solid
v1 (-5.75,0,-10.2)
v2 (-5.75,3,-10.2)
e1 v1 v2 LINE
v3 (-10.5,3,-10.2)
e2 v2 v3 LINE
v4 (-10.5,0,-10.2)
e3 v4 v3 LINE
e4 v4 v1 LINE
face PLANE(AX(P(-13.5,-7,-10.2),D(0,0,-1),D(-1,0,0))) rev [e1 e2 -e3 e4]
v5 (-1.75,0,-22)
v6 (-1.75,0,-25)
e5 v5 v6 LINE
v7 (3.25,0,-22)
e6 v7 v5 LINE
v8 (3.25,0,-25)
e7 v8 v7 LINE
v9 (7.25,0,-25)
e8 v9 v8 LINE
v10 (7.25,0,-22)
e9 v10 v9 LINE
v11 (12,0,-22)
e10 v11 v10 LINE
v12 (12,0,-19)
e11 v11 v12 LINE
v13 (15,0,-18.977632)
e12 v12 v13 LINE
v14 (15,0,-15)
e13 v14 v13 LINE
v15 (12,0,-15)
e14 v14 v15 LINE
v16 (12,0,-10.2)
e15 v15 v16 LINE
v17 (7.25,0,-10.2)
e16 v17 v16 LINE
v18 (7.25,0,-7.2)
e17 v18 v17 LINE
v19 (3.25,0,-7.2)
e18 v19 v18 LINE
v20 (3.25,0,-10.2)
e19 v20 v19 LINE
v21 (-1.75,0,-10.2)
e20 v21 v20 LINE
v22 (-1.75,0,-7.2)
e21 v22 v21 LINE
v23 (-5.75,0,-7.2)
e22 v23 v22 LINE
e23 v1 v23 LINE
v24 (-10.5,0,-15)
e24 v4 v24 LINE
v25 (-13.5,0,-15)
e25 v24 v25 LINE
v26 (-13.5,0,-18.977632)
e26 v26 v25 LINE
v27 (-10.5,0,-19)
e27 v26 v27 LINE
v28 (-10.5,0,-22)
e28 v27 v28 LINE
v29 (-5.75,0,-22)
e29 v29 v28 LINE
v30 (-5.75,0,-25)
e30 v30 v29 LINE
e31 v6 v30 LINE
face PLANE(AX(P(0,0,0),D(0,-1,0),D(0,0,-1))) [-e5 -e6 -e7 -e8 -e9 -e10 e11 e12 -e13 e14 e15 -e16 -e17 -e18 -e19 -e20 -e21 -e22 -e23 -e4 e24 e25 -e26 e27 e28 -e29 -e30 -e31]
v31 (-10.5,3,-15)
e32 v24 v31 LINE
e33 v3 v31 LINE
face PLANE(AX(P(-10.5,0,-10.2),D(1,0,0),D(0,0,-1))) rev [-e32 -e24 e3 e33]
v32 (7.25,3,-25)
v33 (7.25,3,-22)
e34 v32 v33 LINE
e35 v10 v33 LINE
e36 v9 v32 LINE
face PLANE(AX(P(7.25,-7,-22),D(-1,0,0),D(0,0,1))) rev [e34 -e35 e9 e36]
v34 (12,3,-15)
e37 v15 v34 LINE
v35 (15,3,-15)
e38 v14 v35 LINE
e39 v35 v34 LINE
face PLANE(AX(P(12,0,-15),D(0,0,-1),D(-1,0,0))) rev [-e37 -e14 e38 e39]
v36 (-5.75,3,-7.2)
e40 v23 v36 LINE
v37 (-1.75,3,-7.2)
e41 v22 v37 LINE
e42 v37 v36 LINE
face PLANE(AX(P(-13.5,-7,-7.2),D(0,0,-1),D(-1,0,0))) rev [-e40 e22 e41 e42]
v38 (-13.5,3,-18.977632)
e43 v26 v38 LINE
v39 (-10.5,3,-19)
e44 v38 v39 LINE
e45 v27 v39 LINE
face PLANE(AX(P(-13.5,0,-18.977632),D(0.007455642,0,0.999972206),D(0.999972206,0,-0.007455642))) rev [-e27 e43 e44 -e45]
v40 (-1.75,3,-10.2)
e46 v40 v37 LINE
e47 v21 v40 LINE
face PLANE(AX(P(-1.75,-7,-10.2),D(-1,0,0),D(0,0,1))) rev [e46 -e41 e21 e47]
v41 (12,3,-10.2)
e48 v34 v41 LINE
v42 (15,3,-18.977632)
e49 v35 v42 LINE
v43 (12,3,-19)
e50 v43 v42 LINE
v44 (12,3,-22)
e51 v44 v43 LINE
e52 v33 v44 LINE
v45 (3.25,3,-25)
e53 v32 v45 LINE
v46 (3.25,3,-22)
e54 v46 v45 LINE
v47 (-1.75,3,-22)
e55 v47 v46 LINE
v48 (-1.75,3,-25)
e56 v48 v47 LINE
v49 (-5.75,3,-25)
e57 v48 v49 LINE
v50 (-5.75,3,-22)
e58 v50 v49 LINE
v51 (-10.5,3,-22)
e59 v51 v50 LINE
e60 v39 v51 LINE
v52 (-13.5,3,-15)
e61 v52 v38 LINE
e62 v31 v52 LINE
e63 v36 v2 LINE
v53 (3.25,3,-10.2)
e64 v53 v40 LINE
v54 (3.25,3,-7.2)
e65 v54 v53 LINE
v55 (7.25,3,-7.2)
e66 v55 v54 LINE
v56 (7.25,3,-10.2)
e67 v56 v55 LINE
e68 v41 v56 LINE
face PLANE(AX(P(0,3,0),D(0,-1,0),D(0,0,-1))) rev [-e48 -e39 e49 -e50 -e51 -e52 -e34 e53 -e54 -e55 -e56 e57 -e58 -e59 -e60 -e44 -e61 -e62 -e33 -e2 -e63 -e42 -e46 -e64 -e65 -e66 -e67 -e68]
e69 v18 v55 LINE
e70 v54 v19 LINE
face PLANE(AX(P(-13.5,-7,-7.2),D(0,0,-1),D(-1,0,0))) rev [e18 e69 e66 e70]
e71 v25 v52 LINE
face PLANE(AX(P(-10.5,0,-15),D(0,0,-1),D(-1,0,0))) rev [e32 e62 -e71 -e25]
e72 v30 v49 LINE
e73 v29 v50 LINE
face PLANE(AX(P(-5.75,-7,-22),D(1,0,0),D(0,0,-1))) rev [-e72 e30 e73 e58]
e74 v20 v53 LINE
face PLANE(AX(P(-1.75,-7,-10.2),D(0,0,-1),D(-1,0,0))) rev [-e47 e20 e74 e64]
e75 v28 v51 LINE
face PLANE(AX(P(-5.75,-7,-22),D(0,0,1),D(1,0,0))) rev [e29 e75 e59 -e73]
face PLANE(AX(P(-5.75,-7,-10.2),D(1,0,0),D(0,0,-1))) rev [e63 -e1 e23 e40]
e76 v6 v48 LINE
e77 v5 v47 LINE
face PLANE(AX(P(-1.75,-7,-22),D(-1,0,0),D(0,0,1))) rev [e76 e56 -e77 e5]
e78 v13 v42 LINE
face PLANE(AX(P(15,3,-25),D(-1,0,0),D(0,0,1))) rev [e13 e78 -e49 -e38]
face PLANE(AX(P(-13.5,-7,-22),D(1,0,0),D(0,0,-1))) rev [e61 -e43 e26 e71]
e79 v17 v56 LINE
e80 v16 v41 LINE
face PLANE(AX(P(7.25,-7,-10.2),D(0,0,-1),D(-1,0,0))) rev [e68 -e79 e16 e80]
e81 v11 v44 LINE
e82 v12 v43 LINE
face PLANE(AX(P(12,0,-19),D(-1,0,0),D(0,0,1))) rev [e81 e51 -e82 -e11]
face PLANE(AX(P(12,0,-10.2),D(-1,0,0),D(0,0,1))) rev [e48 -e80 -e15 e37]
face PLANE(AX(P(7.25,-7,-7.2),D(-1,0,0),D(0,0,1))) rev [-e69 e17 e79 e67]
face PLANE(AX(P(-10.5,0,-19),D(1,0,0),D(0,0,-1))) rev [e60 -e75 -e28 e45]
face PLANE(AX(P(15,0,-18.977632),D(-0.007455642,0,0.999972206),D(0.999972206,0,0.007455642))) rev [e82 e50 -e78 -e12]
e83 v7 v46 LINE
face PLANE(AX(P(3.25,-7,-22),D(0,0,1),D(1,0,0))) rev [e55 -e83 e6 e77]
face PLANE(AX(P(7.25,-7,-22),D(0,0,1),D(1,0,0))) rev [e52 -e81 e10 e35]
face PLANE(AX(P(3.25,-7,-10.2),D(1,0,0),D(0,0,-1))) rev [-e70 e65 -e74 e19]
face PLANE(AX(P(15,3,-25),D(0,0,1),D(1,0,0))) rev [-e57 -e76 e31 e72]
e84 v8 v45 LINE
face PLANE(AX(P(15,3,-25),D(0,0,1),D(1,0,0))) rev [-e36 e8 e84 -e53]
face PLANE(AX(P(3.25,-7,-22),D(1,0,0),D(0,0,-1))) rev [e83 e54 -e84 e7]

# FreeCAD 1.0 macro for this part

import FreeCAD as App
import Part
import Sketcher

V = App.Vector

doc = App.newDocument("Part")
params = doc.addObject("Spreadsheet::Sheet", "Params")
for row, (alias, value) in enumerate([
    ("sketch1_width", "30 mm"),
    ("sketch1_height", "50 mm"),
    ("pad1_length", "3 mm"),
    ("sketch2_width", "5 mm"),
    ("sketch2_height", "3 mm"),
    ("sketch2_width2", "7.75 mm"),
    ("pocket1_length", "10 mm"),
    ("sketch3_height", "14.8 mm"),
    ("pocket2_length", "10 mm"),
    ("sketch4_width", "5 mm"),
    ("sketch4_height", "3 mm"),
    ("sketch4_width2", "7.75 mm"),
    ("pocket3_length", "10 mm"),
    ("sketch5_width", "3 mm"),
    ("sketch5_height", "4.8 mm"),
    ("sketch5_height2", "11.8 mm"),
    ("pocket4_length", "3 mm"),
], start=1):
    params.set(f"A{row}", alias)
    params.set(f"B{row}", "=" + value)
    params.setAlias(f"B{row}", alias)

body = doc.addObject("PartDesign::Body", "Body")

# Sketch on XZ plane
sketch1 = body.newObject("Sketcher::SketchObject", "Sketch")
sketch1.AttachmentSupport = (doc.getObject("XZ_Plane"), [""])
sketch1.MapMode = "FlatFace"
sketch1.addGeometry(Part.LineSegment(V(-15, -25, 0), V(-15, 25, 0)), False)
sketch1.addGeometry(Part.LineSegment(V(-15, 25, 0), V(15, 25, 0)), False)
sketch1.addGeometry(Part.LineSegment(V(15, 25, 0), V(15, -25, 0)), False)
sketch1.addGeometry(Part.LineSegment(V(15, -25, 0), V(-15, -25, 0)), False)
sketch1.addConstraint(Sketcher.Constraint("Coincident", 0, 2, 1, 1))
sketch1.addConstraint(Sketcher.Constraint("Coincident", 1, 2, 2, 1))
sketch1.addConstraint(Sketcher.Constraint("Coincident", 2, 2, 3, 1))
sketch1.addConstraint(Sketcher.Constraint("Coincident", 3, 2, 0, 1))
sketch1.addConstraint(Sketcher.Constraint("Vertical", 0))
sketch1.addConstraint(Sketcher.Constraint("Horizontal", 1))
sketch1.addConstraint(Sketcher.Constraint("Vertical", 2))
sketch1.addConstraint(Sketcher.Constraint("Horizontal", 3))
sketch1.addConstraint(Sketcher.Constraint("Symmetric", 0, 2, 2, 2, -1, 1))
sketch1.addConstraint(Sketcher.Constraint("DistanceX", 1, 1, 1, 2, 30.0))
sketch1.addConstraint(Sketcher.Constraint("DistanceY", 0, 1, 0, 2, 50.0))
sketch1.setExpression("Constraints[9]", "Params.sketch1_width")
sketch1.setExpression("Constraints[10]", "Params.sketch1_height")
pad1 = body.newObject("PartDesign::Pad", "Pad")
pad1.Profile = sketch1
pad1.setExpression("Length", "Params.pad1_length")
pad1.Reversed = True

# Sketch on XZ plane
sketch2 = body.newObject("Sketcher::SketchObject", "Sketch001")
sketch2.AttachmentSupport = (doc.getObject("XZ_Plane"), [""])
sketch2.MapMode = "FlatFace"
sketch2.AttachmentOffset = App.Placement(V(0, 0, -3), App.Rotation())
sketch2.addGeometry(Part.LineSegment(V(7.25, -25, 0), V(7.25, -22, 0)), False)
sketch2.addGeometry(Part.LineSegment(V(7.25, -22, 0), V(15, -22, 0)), False)
sketch2.addGeometry(Part.LineSegment(V(15, -22, 0), V(15, -25, 0)), False)
sketch2.addGeometry(Part.LineSegment(V(15, -25, 0), V(7.25, -25, 0)), False)
sketch2.addGeometry(Part.LineSegment(V(-1.75, -25, 0), V(-1.75, -22, 0)), False)
sketch2.addGeometry(Part.LineSegment(V(-1.75, -22, 0), V(3.25, -22, 0)), False)
sketch2.addGeometry(Part.LineSegment(V(3.25, -22, 0), V(3.25, -25, 0)), False)
sketch2.addGeometry(Part.LineSegment(V(3.25, -25, 0), V(-1.75, -25, 0)), False)
sketch2.addGeometry(Part.LineSegment(V(-13.5, -25, 0), V(-13.5, -22, 0)), False)
sketch2.addGeometry(Part.LineSegment(V(-13.5, -22, 0), V(-5.75, -22, 0)), False)
sketch2.addGeometry(Part.LineSegment(V(-5.75, -22, 0), V(-5.75, -25, 0)), False)
sketch2.addGeometry(Part.LineSegment(V(-5.75, -25, 0), V(-13.5, -25, 0)), False)
sketch2.addConstraint(Sketcher.Constraint("Coincident", 0, 2, 1, 1))
sketch2.addConstraint(Sketcher.Constraint("Coincident", 1, 2, 2, 1))
sketch2.addConstraint(Sketcher.Constraint("Coincident", 2, 2, 3, 1))
sketch2.addConstraint(Sketcher.Constraint("Coincident", 3, 2, 0, 1))
sketch2.addConstraint(Sketcher.Constraint("Coincident", 4, 2, 5, 1))
sketch2.addConstraint(Sketcher.Constraint("Coincident", 5, 2, 6, 1))
sketch2.addConstraint(Sketcher.Constraint("Coincident", 6, 2, 7, 1))
sketch2.addConstraint(Sketcher.Constraint("Coincident", 7, 2, 4, 1))
sketch2.addConstraint(Sketcher.Constraint("Coincident", 8, 2, 9, 1))
sketch2.addConstraint(Sketcher.Constraint("Coincident", 9, 2, 10, 1))
sketch2.addConstraint(Sketcher.Constraint("Coincident", 10, 2, 11, 1))
sketch2.addConstraint(Sketcher.Constraint("Coincident", 11, 2, 8, 1))
sketch2.addConstraint(Sketcher.Constraint("Vertical", 0))
sketch2.addConstraint(Sketcher.Constraint("Horizontal", 1))
sketch2.addConstraint(Sketcher.Constraint("Vertical", 2))
sketch2.addConstraint(Sketcher.Constraint("Horizontal", 3))
sketch2.addConstraint(Sketcher.Constraint("Vertical", 4))
sketch2.addConstraint(Sketcher.Constraint("Horizontal", 5))
sketch2.addConstraint(Sketcher.Constraint("Vertical", 6))
sketch2.addConstraint(Sketcher.Constraint("Horizontal", 7))
sketch2.addConstraint(Sketcher.Constraint("Vertical", 8))
sketch2.addConstraint(Sketcher.Constraint("Horizontal", 9))
sketch2.addConstraint(Sketcher.Constraint("Vertical", 10))
sketch2.addConstraint(Sketcher.Constraint("Horizontal", 11))
sketch2.addConstraint(Sketcher.Constraint("Horizontal", 1, 2, 4, 2))
sketch2.addConstraint(Sketcher.Constraint("Horizontal", 3, 2, 6, 2))
sketch2.addConstraint(Sketcher.Constraint("Horizontal", 5, 2, 8, 2))
sketch2.addConstraint(Sketcher.Constraint("Horizontal", 7, 2, 10, 2))
sketch2.addConstraint(Sketcher.Constraint("Equal", 3, 9))
sketch2.addConstraint(Sketcher.Constraint("DistanceX", 5, 1, 5, 2, 5.0))
sketch2.addConstraint(Sketcher.Constraint("DistanceY", 0, 1, 0, 2, 3.0))
sketch2.addConstraint(Sketcher.Constraint("DistanceY", 0, 2, -1, 1, 22.0))
sketch2.addConstraint(Sketcher.Constraint("DistanceX", -1, 1, 1, 2, 15.0))
sketch2.addConstraint(Sketcher.Constraint("DistanceX", 4, 2, 0, 2, 9.0))
sketch2.addConstraint(Sketcher.Constraint("DistanceX", 9, 2, 4, 2, 4.0))
sketch2.addConstraint(Sketcher.Constraint("DistanceX", 1, 1, 1, 2, 7.75))
sketch2.setExpression("Constraints[29]", "Params.sketch2_width")
sketch2.setExpression("Constraints[30]", "Params.sketch2_height")
sketch2.setExpression("Constraints[35]", "Params.sketch2_width2")
pocket1 = body.newObject("PartDesign::Pocket", "Pocket")
pocket1.Profile = sketch2
pocket1.setExpression("Length", "Params.pocket1_length")
pocket1.Reversed = True

# Sketch on XZ plane
sketch3 = body.newObject("Sketcher::SketchObject", "Sketch002")
sketch3.AttachmentSupport = (doc.getObject("XZ_Plane"), [""])
sketch3.MapMode = "FlatFace"
sketch3.AttachmentOffset = App.Placement(V(0, 0, -3), App.Rotation())
sketch3.addGeometry(Part.LineSegment(V(-13.5, -7.2, 0), V(-13.5, -22, 0)), False)
sketch3.addGeometry(Part.LineSegment(V(-13.5, -22, 0), V(-12.545267, -26.393201, 0)), False)
sketch3.addGeometry(Part.LineSegment(V(-12.545267, -26.393201, 0), V(-28.226415, -29.547984, 0)), False)
sketch3.addGeometry(Part.LineSegment(V(-28.226415, -29.547984, 0), V(-28.226415, 62.151394, 0)), False)
sketch3.addGeometry(Part.LineSegment(V(-28.226415, 62.151394, 0), V(23.912216, 42.141377, 0)), False)
sketch3.addGeometry(Part.LineSegment(V(23.912216, 42.141377, 0), V(33.838871, -7.2, 0)), False)
sketch3.addGeometry(Part.LineSegment(V(33.838871, -7.2, 0), V(-13.5, -7.2, 0)), False)
sketch3.addConstraint(Sketcher.Constraint("Coincident", 0, 2, 1, 1))
sketch3.addConstraint(Sketcher.Constraint("Coincident", 1, 2, 2, 1))
sketch3.addConstraint(Sketcher.Constraint("Coincident", 2, 2, 3, 1))
sketch3.addConstraint(Sketcher.Constraint("Coincident", 3, 2, 4, 1))
sketch3.addConstraint(Sketcher.Constraint("Coincident", 4, 2, 5, 1))
sketch3.addConstraint(Sketcher.Constraint("Coincident", 5, 2, 6, 1))
sketch3.addConstraint(Sketcher.Constraint("Coincident", 6, 2, 0, 1))
sketch3.addConstraint(Sketcher.Constraint("Vertical", 0))
sketch3.addConstraint(Sketcher.Constraint("Vertical", 3))
sketch3.addConstraint(Sketcher.Constraint("Horizontal", 6))
sketch3.addConstraint(Sketcher.Constraint("Perpendicular", 2, 5))
sketch3.addConstraint(Sketcher.Constraint("DistanceY", 0, 2, 0, 1, 14.8))
sketch3.addConstraint(Sketcher.Constraint("DistanceY", 0, 2, -1, 1, 22.0))
sketch3.addConstraint(Sketcher.Constraint("DistanceX", 0, 2, -1, 1, 13.5))
sketch3.addConstraint(Sketcher.Constraint("DistanceX", 6, 2, 6, 1, 47.338871))
sketch3.addConstraint(Sketcher.Constraint("DistanceY", 1, 2, -1, 1, 26.393201))
sketch3.addConstraint(Sketcher.Constraint("Distance", 5, 50.330011))
sketch3.addConstraint(Sketcher.Constraint("DistanceY", 3, 1, 3, 2, 91.699377))
sketch3.addConstraint(Sketcher.Constraint("DistanceX", 3, 2, 4, 2, 52.138631))
sketch3.addConstraint(Sketcher.Constraint("DistanceY", 1, 2, 4, 2, 68.534578))
sketch3.addConstraint(Sketcher.Constraint("DistanceY", 2, 2, 4, 2, 71.689361))
sketch3.setExpression("Constraints[11]", "Params.sketch3_height")
pocket2 = body.newObject("PartDesign::Pocket", "Pocket001")
pocket2.Profile = sketch3
pocket2.setExpression("Length", "Params.pocket2_length")
pocket2.Reversed = True

# Sketch on XZ plane
sketch4 = body.newObject("Sketcher::SketchObject", "Sketch003")
sketch4.AttachmentSupport = (doc.getObject("XZ_Plane"), [""])
sketch4.MapMode = "FlatFace"
sketch4.AttachmentOffset = App.Placement(V(0, 0, -3), App.Rotation())
sketch4.addGeometry(Part.LineSegment(V(7.25, -10.2, 0), V(7.25, -7.2, 0)), False)
sketch4.addGeometry(Part.LineSegment(V(7.25, -7.2, 0), V(15, -7.2, 0)), False)
sketch4.addGeometry(Part.LineSegment(V(15, -7.2, 0), V(15, -10.2, 0)), False)
sketch4.addGeometry(Part.LineSegment(V(15, -10.2, 0), V(7.25, -10.2, 0)), False)
sketch4.addGeometry(Part.LineSegment(V(-13.5, -10.2, 0), V(-13.5, -7.2, 0)), False)
sketch4.addGeometry(Part.LineSegment(V(-13.5, -7.2, 0), V(-5.75, -7.2, 0)), False)
sketch4.addGeometry(Part.LineSegment(V(-5.75, -7.2, 0), V(-5.75, -10.2, 0)), False)
sketch4.addGeometry(Part.LineSegment(V(-5.75, -10.2, 0), V(-13.5, -10.2, 0)), False)
sketch4.addGeometry(Part.LineSegment(V(-1.75, -10.2, 0), V(-1.75, -7.2, 0)), False)
sketch4.addGeometry(Part.LineSegment(V(-1.75, -7.2, 0), V(3.25, -7.2, 0)), False)
sketch4.addGeometry(Part.LineSegment(V(3.25, -7.2, 0), V(3.25, -10.2, 0)), False)
sketch4.addGeometry(Part.LineSegment(V(3.25, -10.2, 0), V(-1.75, -10.2, 0)), False)
sketch4.addConstraint(Sketcher.Constraint("Coincident", 0, 2, 1, 1))
sketch4.addConstraint(Sketcher.Constraint("Coincident", 1, 2, 2, 1))
sketch4.addConstraint(Sketcher.Constraint("Coincident", 2, 2, 3, 1))
sketch4.addConstraint(Sketcher.Constraint("Coincident", 3, 2, 0, 1))
sketch4.addConstraint(Sketcher.Constraint("Coincident", 4, 2, 5, 1))
sketch4.addConstraint(Sketcher.Constraint("Coincident", 5, 2, 6, 1))
sketch4.addConstraint(Sketcher.Constraint("Coincident", 6, 2, 7, 1))
sketch4.addConstraint(Sketcher.Constraint("Coincident", 7, 2, 4, 1))
sketch4.addConstraint(Sketcher.Constraint("Coincident", 8, 2, 9, 1))
sketch4.addConstraint(Sketcher.Constraint("Coincident", 9, 2, 10, 1))
sketch4.addConstraint(Sketcher.Constraint("Coincident", 10, 2, 11, 1))
sketch4.addConstraint(Sketcher.Constraint("Coincident", 11, 2, 8, 1))
sketch4.addConstraint(Sketcher.Constraint("Vertical", 0))
sketch4.addConstraint(Sketcher.Constraint("Horizontal", 1))
sketch4.addConstraint(Sketcher.Constraint("Vertical", 2))
sketch4.addConstraint(Sketcher.Constraint("Horizontal", 3))
sketch4.addConstraint(Sketcher.Constraint("Vertical", 4))
sketch4.addConstraint(Sketcher.Constraint("Horizontal", 5))
sketch4.addConstraint(Sketcher.Constraint("Vertical", 6))
sketch4.addConstraint(Sketcher.Constraint("Horizontal", 7))
sketch4.addConstraint(Sketcher.Constraint("Vertical", 8))
sketch4.addConstraint(Sketcher.Constraint("Horizontal", 9))
sketch4.addConstraint(Sketcher.Constraint("Vertical", 10))
sketch4.addConstraint(Sketcher.Constraint("Horizontal", 11))
sketch4.addConstraint(Sketcher.Constraint("Horizontal", 1, 2, 4, 2))
sketch4.addConstraint(Sketcher.Constraint("Horizontal", 3, 2, 6, 2))
sketch4.addConstraint(Sketcher.Constraint("Horizontal", 5, 2, 8, 2))
sketch4.addConstraint(Sketcher.Constraint("Horizontal", 7, 2, 10, 2))
sketch4.addConstraint(Sketcher.Constraint("Equal", 3, 5))
sketch4.addConstraint(Sketcher.Constraint("DistanceX", 9, 1, 9, 2, 5.0))
sketch4.addConstraint(Sketcher.Constraint("DistanceY", 0, 1, 0, 2, 3.0))
sketch4.addConstraint(Sketcher.Constraint("DistanceX", -1, 1, 1, 2, 15.0))
sketch4.addConstraint(Sketcher.Constraint("DistanceX", 5, 2, 0, 2, 13.0))
sketch4.addConstraint(Sketcher.Constraint("DistanceX", 5, 2, 8, 2, 4.0))
sketch4.addConstraint(Sketcher.Constraint("DistanceX", 1, 1, 1, 2, 7.75))
sketch4.addConstraint(Sketcher.Constraint("DistanceY", 0, 2, -1, 1, 7.2))
sketch4.setExpression("Constraints[29]", "Params.sketch4_width")
sketch4.setExpression("Constraints[30]", "Params.sketch4_height")
sketch4.setExpression("Constraints[34]", "Params.sketch4_width2")
pocket3 = body.newObject("PartDesign::Pocket", "Pocket002")
pocket3.Profile = sketch4
pocket3.setExpression("Length", "Params.pocket3_length")
pocket3.Reversed = True

# Sketch on XZ plane
sketch5 = body.newObject("Sketcher::SketchObject", "Sketch004")
sketch5.AttachmentSupport = (doc.getObject("XZ_Plane"), [""])
sketch5.MapMode = "FlatFace"
sketch5.AttachmentOffset = App.Placement(V(0, 0, -3), App.Rotation())
sketch5.addGeometry(Part.LineSegment(V(-10.5, -10.2, 0), V(-10.5, -15, 0)), False)
sketch5.addGeometry(Part.LineSegment(V(-10.5, -15, 0), V(-13.5, -15, 0)), False)
sketch5.addGeometry(Part.LineSegment(V(-13.5, -15, 0), V(-13.5, -18.977632, 0)), False)
sketch5.addGeometry(Part.LineSegment(V(-13.5, -18.977632, 0), V(-10.5, -19, 0)), False)
sketch5.addGeometry(Part.LineSegment(V(-10.5, -19, 0), V(-10.5, -22, 0)), False)
sketch5.addGeometry(Part.LineSegment(V(-10.5, -22, 0), V(-14.441736, -22, 0)), False)
sketch5.addGeometry(Part.LineSegment(V(-14.441736, -22, 0), V(-14.441736, -10.2, 0)), False)
sketch5.addGeometry(Part.LineSegment(V(-14.441736, -10.2, 0), V(-10.5, -10.2, 0)), False)
sketch5.addGeometry(Part.LineSegment(V(15.941736, -10.2, 0), V(15.941736, -22, 0)), False)
sketch5.addGeometry(Part.LineSegment(V(15.941736, -22, 0), V(12, -22, 0)), False)
sketch5.addGeometry(Part.LineSegment(V(12, -22, 0), V(12, -19, 0)), False)
sketch5.addGeometry(Part.LineSegment(V(12, -19, 0), V(15, -18.977632, 0)), False)
sketch5.addGeometry(Part.LineSegment(V(15, -18.977632, 0), V(15, -15, 0)), False)
sketch5.addGeometry(Part.LineSegment(V(15, -15, 0), V(12, -15, 0)), False)
sketch5.addGeometry(Part.LineSegment(V(12, -15, 0), V(12, -10.2, 0)), False)
sketch5.addGeometry(Part.LineSegment(V(12, -10.2, 0), V(15.941736, -10.2, 0)), False)
sketch5.addConstraint(Sketcher.Constraint("Coincident", 0, 2, 1, 1))
sketch5.addConstraint(Sketcher.Constraint("Coincident", 1, 2, 2, 1))
sketch5.addConstraint(Sketcher.Constraint("Coincident", 2, 2, 3, 1))
sketch5.addConstraint(Sketcher.Constraint("Coincident", 3, 2, 4, 1))
sketch5.addConstraint(Sketcher.Constraint("Coincident", 4, 2, 5, 1))
sketch5.addConstraint(Sketcher.Constraint("Coincident", 5, 2, 6, 1))
sketch5.addConstraint(Sketcher.Constraint("Coincident", 6, 2, 7, 1))
sketch5.addConstraint(Sketcher.Constraint("Coincident", 7, 2, 0, 1))
sketch5.addConstraint(Sketcher.Constraint("Coincident", 8, 2, 9, 1))
sketch5.addConstraint(Sketcher.Constraint("Coincident", 9, 2, 10, 1))
sketch5.addConstraint(Sketcher.Constraint("Coincident", 10, 2, 11, 1))
sketch5.addConstraint(Sketcher.Constraint("Coincident", 11, 2, 12, 1))
sketch5.addConstraint(Sketcher.Constraint("Coincident", 12, 2, 13, 1))
sketch5.addConstraint(Sketcher.Constraint("Coincident", 13, 2, 14, 1))
sketch5.addConstraint(Sketcher.Constraint("Coincident", 14, 2, 15, 1))
sketch5.addConstraint(Sketcher.Constraint("Coincident", 15, 2, 8, 1))
sketch5.addConstraint(Sketcher.Constraint("Vertical", 0))
sketch5.addConstraint(Sketcher.Constraint("Horizontal", 1))
sketch5.addConstraint(Sketcher.Constraint("Vertical", 2))
sketch5.addConstraint(Sketcher.Constraint("Vertical", 4))
sketch5.addConstraint(Sketcher.Constraint("Horizontal", 5))
sketch5.addConstraint(Sketcher.Constraint("Vertical", 6))
sketch5.addConstraint(Sketcher.Constraint("Horizontal", 7))
sketch5.addConstraint(Sketcher.Constraint("Vertical", 8))
sketch5.addConstraint(Sketcher.Constraint("Horizontal", 9))
sketch5.addConstraint(Sketcher.Constraint("Vertical", 10))
sketch5.addConstraint(Sketcher.Constraint("Vertical", 12))
sketch5.addConstraint(Sketcher.Constraint("Horizontal", 13))
sketch5.addConstraint(Sketcher.Constraint("Vertical", 14))
sketch5.addConstraint(Sketcher.Constraint("Horizontal", 15))
sketch5.addConstraint(Sketcher.Constraint("Horizontal", 5, 2, 8, 2))
sketch5.addConstraint(Sketcher.Constraint("Horizontal", 3, 2, 10, 2))
sketch5.addConstraint(Sketcher.Constraint("Horizontal", 2, 2, 11, 2))
sketch5.addConstraint(Sketcher.Constraint("Horizontal", 1, 2, 12, 2))
sketch5.addConstraint(Sketcher.Constraint("Horizontal", 7, 2, 14, 2))
sketch5.addConstraint(Sketcher.Constraint("Vertical", 0, 2, 3, 2))
sketch5.addConstraint(Sketcher.Constraint("Vertical", 10, 2, 13, 2))
sketch5.addConstraint(Sketcher.Constraint("Equal", 7, 9))
sketch5.addConstraint(Sketcher.Constraint("Equal", 1, 13))
sketch5.addConstraint(Sketcher.Constraint("Equal", 13, 4))
sketch5.addConstraint(Sketcher.Constraint("DistanceX", 1, 2, 1, 1, 3.0))
sketch5.addConstraint(Sketcher.Constraint("DistanceY", 0, 2, 0, 1, 4.8))
sketch5.addConstraint(Sketcher.Constraint("DistanceY", 6, 1, 6, 2, 11.8))
sketch5.addConstraint(Sketcher.Constraint("DistanceY", 0, 2, -1, 1, 15.0))
sketch5.addConstraint(Sketcher.Constraint("DistanceX", -1, 1, 9, 2, 12.0))
sketch5.addConstraint(Sketcher.Constraint("DistanceX", 0, 2, -1, 1, 10.5))
sketch5.addConstraint(Sketcher.Constraint("DistanceX", 5, 2, 5, 1, 3.941736))
sketch5.addConstraint(Sketcher.Constraint("DistanceY", 2, 2, 2, 1, 3.977632))
sketch5.setExpression("Constraints[40]", "Params.sketch5_width")
sketch5.setExpression("Constraints[41]", "Params.sketch5_height")
sketch5.setExpression("Constraints[42]", "Params.sketch5_height2")
pocket4 = body.newObject("PartDesign::Pocket", "Pocket003")
pocket4.Profile = sketch5
pocket4.setExpression("Length", "Params.pocket4_length")
pocket4.Reversed = True

doc.recompute()
